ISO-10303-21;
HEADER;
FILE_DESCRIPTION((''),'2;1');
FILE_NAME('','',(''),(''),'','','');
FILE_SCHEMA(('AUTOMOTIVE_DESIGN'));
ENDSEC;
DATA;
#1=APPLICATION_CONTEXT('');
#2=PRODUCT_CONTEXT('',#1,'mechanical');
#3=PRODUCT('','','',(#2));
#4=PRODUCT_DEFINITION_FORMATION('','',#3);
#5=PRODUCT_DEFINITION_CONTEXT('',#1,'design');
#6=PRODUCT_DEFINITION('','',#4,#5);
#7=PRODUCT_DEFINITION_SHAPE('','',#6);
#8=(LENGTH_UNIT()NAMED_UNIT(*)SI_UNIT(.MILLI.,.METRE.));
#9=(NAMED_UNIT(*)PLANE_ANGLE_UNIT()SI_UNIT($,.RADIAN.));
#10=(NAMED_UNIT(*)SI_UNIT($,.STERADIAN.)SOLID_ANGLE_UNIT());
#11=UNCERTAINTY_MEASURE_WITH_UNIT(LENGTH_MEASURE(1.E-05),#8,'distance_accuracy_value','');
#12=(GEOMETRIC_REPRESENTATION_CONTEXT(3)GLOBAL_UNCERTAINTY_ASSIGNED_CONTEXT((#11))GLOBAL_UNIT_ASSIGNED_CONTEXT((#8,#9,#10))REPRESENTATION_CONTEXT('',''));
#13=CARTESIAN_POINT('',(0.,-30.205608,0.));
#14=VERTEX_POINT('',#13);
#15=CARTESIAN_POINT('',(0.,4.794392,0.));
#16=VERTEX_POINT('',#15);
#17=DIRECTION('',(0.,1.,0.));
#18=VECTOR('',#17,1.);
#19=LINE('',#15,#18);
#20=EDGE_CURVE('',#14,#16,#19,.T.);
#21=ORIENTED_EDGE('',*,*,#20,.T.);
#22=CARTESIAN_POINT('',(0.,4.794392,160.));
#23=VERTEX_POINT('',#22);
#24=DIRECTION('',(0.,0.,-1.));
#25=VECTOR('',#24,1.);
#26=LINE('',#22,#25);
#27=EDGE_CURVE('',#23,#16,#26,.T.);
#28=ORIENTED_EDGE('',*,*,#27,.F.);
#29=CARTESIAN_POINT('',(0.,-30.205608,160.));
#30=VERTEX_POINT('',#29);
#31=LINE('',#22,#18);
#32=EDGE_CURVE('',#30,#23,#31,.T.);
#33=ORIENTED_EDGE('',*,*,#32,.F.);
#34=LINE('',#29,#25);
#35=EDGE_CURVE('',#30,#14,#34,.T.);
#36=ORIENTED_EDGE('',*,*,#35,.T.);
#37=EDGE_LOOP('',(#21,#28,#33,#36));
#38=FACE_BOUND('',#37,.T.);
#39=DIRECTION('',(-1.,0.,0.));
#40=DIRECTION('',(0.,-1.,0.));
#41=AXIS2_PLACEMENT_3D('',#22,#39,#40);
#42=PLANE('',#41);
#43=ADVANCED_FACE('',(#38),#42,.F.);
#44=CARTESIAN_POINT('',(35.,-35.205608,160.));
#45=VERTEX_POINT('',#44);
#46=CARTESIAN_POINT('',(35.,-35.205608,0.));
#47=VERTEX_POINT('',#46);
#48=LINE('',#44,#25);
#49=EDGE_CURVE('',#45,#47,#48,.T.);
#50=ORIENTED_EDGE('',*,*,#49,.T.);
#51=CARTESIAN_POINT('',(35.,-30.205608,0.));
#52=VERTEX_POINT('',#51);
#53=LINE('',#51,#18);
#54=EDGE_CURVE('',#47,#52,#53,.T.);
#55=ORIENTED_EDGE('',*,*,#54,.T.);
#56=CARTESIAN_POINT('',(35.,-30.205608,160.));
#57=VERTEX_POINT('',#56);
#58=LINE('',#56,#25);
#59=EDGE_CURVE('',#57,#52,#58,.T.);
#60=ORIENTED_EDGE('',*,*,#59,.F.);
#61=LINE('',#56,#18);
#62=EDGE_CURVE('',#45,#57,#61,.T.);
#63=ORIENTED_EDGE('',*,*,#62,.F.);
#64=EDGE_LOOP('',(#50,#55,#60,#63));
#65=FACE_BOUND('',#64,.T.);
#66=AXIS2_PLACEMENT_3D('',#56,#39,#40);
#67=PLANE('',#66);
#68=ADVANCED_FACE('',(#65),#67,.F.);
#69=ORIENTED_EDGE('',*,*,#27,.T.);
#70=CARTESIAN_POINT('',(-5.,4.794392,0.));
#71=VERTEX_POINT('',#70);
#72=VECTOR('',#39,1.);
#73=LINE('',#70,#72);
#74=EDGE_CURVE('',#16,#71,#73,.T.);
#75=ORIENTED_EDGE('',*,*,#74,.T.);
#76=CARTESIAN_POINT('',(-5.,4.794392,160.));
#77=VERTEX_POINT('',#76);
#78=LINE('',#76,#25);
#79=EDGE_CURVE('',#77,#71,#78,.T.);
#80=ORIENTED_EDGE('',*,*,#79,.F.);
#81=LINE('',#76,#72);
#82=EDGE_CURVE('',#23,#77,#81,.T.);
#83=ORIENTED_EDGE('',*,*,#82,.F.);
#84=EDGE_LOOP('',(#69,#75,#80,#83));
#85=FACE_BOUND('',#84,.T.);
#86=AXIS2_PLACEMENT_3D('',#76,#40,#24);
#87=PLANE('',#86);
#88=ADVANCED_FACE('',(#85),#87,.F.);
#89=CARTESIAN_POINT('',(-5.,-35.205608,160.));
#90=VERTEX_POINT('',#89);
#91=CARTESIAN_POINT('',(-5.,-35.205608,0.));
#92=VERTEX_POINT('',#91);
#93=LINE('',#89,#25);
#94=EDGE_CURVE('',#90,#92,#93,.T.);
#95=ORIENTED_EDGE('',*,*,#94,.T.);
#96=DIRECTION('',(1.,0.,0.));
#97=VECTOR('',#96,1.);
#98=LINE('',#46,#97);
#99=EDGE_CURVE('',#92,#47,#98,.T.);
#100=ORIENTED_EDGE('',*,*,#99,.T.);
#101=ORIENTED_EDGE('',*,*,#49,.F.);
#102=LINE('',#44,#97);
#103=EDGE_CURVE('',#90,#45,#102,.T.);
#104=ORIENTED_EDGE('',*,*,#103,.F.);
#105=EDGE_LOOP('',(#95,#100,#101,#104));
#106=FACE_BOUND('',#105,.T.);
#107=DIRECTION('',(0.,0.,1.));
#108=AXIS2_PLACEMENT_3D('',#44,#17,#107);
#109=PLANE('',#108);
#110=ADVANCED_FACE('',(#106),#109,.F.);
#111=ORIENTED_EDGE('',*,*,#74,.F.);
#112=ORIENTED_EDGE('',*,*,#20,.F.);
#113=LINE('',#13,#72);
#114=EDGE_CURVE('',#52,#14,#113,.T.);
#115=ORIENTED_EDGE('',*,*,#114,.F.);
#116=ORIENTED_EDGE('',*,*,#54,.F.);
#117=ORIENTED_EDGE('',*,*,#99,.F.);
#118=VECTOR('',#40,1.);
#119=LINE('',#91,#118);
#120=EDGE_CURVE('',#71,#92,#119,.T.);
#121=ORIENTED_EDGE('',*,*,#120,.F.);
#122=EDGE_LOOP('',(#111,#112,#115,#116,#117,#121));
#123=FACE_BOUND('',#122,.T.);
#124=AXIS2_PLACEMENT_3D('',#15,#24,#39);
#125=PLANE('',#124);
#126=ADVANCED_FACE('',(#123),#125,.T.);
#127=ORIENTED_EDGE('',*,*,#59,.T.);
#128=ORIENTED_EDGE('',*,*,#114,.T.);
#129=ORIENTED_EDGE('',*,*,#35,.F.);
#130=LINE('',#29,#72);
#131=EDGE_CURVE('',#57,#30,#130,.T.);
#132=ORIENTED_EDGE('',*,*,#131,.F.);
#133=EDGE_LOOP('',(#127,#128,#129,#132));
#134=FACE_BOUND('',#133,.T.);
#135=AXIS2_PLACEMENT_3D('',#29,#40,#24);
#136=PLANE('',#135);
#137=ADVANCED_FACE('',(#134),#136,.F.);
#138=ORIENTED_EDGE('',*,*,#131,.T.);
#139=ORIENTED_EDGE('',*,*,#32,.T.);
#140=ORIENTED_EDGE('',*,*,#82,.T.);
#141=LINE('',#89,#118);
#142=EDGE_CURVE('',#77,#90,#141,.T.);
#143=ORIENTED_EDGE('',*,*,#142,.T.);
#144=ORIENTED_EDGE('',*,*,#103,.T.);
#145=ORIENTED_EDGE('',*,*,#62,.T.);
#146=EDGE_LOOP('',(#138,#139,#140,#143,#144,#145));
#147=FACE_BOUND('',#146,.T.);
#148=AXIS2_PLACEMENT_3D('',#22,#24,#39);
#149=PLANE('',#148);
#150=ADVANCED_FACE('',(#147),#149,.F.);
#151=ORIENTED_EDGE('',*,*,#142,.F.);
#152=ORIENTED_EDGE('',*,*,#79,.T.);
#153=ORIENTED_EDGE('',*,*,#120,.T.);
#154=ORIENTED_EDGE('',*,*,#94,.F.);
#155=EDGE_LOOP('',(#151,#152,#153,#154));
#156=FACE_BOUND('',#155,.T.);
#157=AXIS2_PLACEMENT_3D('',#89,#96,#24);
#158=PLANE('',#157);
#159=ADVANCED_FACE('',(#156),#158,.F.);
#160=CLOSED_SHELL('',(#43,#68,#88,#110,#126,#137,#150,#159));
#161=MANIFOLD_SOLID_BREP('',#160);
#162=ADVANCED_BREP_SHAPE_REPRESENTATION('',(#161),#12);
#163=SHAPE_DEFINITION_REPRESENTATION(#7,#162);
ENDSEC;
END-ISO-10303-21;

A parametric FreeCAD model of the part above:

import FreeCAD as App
import Part
import Sketcher

V = App.Vector
Q = App.Units.Quantity


def add_polygon(sketch, points):
    """Adds a closed chain of lines whose ends are joined by coincident constraints."""
    first, n = sketch.GeometryCount, len(points)
    for a, b in zip(points, points[1:] + points[:1]):
        sketch.addGeometry(Part.LineSegment(App.Vector(*a, 0), App.Vector(*b, 0)), False)
    for i in range(n):
        sketch.addConstraint(Sketcher.Constraint("Coincident", first + i, 2, first + (i + 1) % n, 1))

doc = App.newDocument("Part")
body = doc.addObject("PartDesign::Body", "Body")

# Sketch on XY plane
sketch1 = doc.addObject("Sketcher::SketchObject", "Sketch")
body.addObject(sketch1)
sketch1.AttachmentSupport = (doc.XY_Plane, [""])
sketch1.MapMode = "FlatFace"
add_polygon(sketch1, [(0, -30), (0, 5), (-5, 5), (-5, -35), (35, -35), (35, -30)])  # lines 0-5
sketch1.addConstraint([
    Sketcher.Constraint("Vertical", 0),
    Sketcher.Constraint("Horizontal", 1),
    Sketcher.Constraint("Vertical", 2),
    Sketcher.Constraint("Horizontal", 3),
    Sketcher.Constraint("Vertical", 4),
    Sketcher.Constraint("Horizontal", 5),
    Sketcher.Constraint("PointOnObject", 0, 2, -2),
    Sketcher.Constraint("Equal", 5, 0),
    Sketcher.Constraint("Equal", 3, 2),
    Sketcher.Constraint("DistanceX", 1, 2, 1, 1, Q("5 mm")),
    Sketcher.Constraint("DistanceX", 3, 1, 3, 2, Q("40 mm")),
    Sketcher.Constraint("DistanceY", -1, 1, 0, 2, Q("4.794392 mm")),
])
pad1 = doc.addObject("PartDesign::Pad", "Pad")
body.addObject(pad1)
pad1.Profile = sketch1
pad1.Length = 160

doc.recompute()
